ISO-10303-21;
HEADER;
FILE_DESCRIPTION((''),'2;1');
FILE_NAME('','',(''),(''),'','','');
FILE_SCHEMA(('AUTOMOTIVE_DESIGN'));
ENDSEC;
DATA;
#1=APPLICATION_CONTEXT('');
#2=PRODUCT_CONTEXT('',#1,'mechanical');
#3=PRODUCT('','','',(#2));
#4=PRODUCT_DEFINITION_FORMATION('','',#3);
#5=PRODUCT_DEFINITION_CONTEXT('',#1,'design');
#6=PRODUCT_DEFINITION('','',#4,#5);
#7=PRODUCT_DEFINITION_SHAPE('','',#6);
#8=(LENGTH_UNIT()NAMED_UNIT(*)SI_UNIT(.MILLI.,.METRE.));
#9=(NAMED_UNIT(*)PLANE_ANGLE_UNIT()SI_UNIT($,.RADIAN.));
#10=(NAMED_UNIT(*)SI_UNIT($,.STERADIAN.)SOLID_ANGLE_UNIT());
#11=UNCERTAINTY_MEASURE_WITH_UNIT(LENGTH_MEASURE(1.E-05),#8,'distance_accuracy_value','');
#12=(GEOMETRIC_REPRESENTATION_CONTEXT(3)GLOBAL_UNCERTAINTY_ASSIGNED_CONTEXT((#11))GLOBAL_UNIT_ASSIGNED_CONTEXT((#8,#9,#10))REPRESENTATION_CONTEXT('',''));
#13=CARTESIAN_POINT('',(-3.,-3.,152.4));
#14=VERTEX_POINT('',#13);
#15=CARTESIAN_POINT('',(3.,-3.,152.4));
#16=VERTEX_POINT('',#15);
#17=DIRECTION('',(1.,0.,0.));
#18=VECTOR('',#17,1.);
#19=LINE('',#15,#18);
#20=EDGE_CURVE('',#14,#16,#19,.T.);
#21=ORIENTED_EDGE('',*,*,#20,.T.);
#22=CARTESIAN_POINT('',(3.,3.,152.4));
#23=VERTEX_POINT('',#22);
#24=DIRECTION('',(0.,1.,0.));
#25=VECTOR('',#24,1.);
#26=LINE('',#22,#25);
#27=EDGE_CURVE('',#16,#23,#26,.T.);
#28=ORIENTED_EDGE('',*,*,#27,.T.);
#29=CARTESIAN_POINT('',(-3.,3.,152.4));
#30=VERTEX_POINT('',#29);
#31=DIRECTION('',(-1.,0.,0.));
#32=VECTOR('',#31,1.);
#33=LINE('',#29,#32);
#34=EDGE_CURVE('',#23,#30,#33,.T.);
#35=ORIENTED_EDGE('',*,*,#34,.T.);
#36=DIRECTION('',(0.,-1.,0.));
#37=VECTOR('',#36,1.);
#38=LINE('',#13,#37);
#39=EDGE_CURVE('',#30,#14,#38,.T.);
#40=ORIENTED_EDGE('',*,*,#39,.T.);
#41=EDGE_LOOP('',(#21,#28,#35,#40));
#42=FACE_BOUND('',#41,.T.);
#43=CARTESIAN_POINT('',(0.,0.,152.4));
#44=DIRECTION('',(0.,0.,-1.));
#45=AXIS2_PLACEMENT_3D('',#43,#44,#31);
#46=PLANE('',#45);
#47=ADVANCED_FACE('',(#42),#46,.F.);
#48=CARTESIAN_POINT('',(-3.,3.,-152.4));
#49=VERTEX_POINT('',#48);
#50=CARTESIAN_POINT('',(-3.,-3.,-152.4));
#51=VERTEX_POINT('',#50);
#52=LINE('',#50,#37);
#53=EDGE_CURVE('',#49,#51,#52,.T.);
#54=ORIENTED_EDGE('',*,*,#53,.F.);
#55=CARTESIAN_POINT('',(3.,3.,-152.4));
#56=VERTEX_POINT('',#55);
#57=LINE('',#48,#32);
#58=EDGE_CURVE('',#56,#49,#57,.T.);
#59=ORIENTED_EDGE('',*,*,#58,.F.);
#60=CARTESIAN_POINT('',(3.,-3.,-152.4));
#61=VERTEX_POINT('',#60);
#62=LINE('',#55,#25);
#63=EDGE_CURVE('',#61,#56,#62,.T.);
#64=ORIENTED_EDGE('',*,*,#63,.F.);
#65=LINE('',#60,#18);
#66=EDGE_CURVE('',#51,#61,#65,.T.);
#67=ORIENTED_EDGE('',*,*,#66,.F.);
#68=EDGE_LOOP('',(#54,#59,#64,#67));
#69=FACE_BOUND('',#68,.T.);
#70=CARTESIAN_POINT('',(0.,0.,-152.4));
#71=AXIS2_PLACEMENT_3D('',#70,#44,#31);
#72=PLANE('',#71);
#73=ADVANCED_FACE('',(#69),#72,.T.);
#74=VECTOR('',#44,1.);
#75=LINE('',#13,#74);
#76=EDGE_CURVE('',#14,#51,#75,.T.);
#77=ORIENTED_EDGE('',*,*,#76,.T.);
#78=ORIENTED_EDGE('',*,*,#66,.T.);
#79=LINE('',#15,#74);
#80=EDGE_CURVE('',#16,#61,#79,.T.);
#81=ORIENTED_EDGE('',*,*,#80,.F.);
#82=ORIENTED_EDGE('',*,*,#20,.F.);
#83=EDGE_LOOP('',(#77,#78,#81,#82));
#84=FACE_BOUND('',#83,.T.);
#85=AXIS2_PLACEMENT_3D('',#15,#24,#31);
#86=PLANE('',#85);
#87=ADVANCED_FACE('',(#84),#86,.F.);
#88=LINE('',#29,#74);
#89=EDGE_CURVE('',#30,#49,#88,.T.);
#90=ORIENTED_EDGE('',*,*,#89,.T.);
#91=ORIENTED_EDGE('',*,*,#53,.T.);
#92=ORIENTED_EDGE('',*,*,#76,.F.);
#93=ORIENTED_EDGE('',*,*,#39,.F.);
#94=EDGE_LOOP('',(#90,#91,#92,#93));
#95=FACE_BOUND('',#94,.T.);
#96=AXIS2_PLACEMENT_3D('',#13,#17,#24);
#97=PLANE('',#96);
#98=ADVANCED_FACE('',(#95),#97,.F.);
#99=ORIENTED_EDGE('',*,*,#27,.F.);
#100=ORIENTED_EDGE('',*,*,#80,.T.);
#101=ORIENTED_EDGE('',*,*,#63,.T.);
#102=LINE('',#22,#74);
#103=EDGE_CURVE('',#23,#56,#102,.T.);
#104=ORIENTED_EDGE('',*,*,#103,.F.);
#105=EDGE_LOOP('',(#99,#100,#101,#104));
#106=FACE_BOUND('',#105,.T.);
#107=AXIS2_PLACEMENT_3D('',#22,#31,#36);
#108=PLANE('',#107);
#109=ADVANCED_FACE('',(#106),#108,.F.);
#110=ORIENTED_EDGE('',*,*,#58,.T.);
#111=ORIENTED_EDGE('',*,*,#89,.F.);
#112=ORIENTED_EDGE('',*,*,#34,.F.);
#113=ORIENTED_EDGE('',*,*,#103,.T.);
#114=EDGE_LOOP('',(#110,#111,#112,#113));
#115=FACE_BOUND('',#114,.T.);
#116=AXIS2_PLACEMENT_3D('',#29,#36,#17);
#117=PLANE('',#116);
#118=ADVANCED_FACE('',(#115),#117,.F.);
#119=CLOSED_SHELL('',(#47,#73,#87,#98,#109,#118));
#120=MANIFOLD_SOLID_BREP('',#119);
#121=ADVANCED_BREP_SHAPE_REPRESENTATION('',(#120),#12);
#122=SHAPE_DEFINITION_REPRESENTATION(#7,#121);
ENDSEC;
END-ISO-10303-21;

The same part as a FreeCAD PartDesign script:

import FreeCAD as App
import Part
import Sketcher
from FreeCAD import Vector


def add_polygon(sketch, points):
    """Adds a closed chain of lines whose ends are joined by coincident constraints."""
    first, n = sketch.GeometryCount, len(points)
    for a, b in zip(points, points[1:] + points[:1]):
        sketch.addGeometry(Part.LineSegment(App.Vector(*a, 0), App.Vector(*b, 0)), False)
    for i in range(n):
        sketch.addConstraint(Sketcher.Constraint("Coincident", first + i, 2, first + (i + 1) % n, 1))

doc = App.newDocument("Part")
params = doc.addObject("Spreadsheet::Sheet", "Params")
for row, (alias, value) in enumerate([
    ("sketch1_width", "6 mm"),
    ("pad1_length", "304.8 mm"),
], start=1):
    params.set(f"A{row}", alias)
    params.set(f"B{row}", "=" + value)
    params.setAlias(f"B{row}", alias)

body = doc.addObject("PartDesign::Body", "Body")

# Sketch on XY plane
sketch1 = body.newObject("Sketcher::SketchObject", "Sketch")
sketch1.AttachmentSupport = (doc.getObject("XY_Plane"), [""])
sketch1.MapMode = "FlatFace"
add_polygon(sketch1, [(-3, 3), (-3, -3), (3, -3), (3, 3)])  # lines 0-3
sketch1.addConstraint(Sketcher.Constraint("Vertical", 0))
sketch1.addConstraint(Sketcher.Constraint("Horizontal", 1))
sketch1.addConstraint(Sketcher.Constraint("Vertical", 2))
sketch1.addConstraint(Sketcher.Constraint("Horizontal", 3))
sketch1.addConstraint(Sketcher.Constraint("Symmetric", 0, 2, 2, 2, -1, 1))
sketch1.addConstraint(Sketcher.Constraint("Equal", 3, 0))
sketch1.addConstraint(Sketcher.Constraint("DistanceX", 1, 1, 1, 2, 6.0))
sketch1.setExpression("Constraints[10]", "Params.sketch1_width")
pad1 = body.newObject("PartDesign::Pad", "Pad")
pad1.Profile = sketch1
pad1.setExpression("Length", "Params.pad1_length")
pad1.Midplane = True

doc.recompute()
